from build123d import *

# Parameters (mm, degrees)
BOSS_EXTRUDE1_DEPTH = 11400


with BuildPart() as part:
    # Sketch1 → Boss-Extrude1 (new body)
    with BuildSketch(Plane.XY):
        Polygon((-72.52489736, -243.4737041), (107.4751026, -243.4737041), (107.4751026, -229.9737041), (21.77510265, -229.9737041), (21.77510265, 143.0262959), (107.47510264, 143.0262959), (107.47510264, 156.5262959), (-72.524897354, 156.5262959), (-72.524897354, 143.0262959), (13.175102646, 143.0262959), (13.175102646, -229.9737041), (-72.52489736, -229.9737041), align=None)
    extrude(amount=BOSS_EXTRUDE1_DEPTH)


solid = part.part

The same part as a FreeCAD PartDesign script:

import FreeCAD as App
import Part
import Sketcher

V = App.Vector


def add_polygon(sketch, points):
    """Adds a closed chain of lines whose ends are joined by coincident constraints."""
    first, n = sketch.GeometryCount, len(points)
    for a, b in zip(points, points[1:] + points[:1]):
        sketch.addGeometry(Part.LineSegment(App.Vector(*a, 0), App.Vector(*b, 0)), False)
    for i in range(n):
        sketch.addConstraint(Sketcher.Constraint("Coincident", first + i, 2, first + (i + 1) % n, 1))

doc = App.newDocument("Part")
body = doc.addObject("PartDesign::Body", "Body")

sketch1 = doc.addObject("Sketcher::SketchObject", "Sketch")
body.addObject(sketch1)
sketch1.AttachmentSupport = (doc.XY_Plane, [""])
sketch1.MapMode = "FlatFace"
add_polygon(sketch1, [(-73, -243), (107, -243), (107, -230), (22, -230), (22, 143), (107, 143), (107, 157), (-73, 157), (-73, 143), (13, 143), (13, -230), (-73, -230)])
sketch1.addConstraint(Sketcher.Constraint("Horizontal", 0))
sketch1.addConstraint(Sketcher.Constraint("Vertical", 1))
sketch1.addConstraint(Sketcher.Constraint("Horizontal", 2))
sketch1.addConstraint(Sketcher.Constraint("Vertical", 3))
sketch1.addConstraint(Sketcher.Constraint("Horizontal", 4))
sketch1.addConstraint(Sketcher.Constraint("Vertical", 5))
sketch1.addConstraint(Sketcher.Constraint("Horizontal", 6))
sketch1.addConstraint(Sketcher.Constraint("Vertical", 7))
sketch1.addConstraint(Sketcher.Constraint("Horizontal", 8))
sketch1.addConstraint(Sketcher.Constraint("Vertical", 9))
sketch1.addConstraint(Sketcher.Constraint("Horizontal", 10))
sketch1.addConstraint(Sketcher.Constraint("Vertical", 11))
sketch1.addConstraint(Sketcher.Constraint("Horizontal", 4, 2, 7, 2))
sketch1.addConstraint(Sketcher.Constraint("Horizontal", 2, 2, 9, 2))
sketch1.addConstraint(Sketcher.Constraint("Vertical", 1, 2, 4, 2))
sketch1.addConstraint(Sketcher.Constraint("Vertical", 7, 2, 10, 2))
sketch1.addConstraint(Sketcher.Constraint("Equal", 4, 8))
sketch1.addConstraint(Sketcher.Constraint("Equal", 1, 5))
sketch1.addConstraint(Sketcher.Constraint("DistanceX", 0, 1, 0, 2, 180.0))
sketch1.addConstraint(Sketcher.Constraint("DistanceY", 3, 1, 3, 2, 373.0))
sketch1.addConstraint(Sketcher.Constraint("DistanceX", 2, 2, 2, 1, 85.7))
sketch1.addConstraint(Sketcher.Constraint("DistanceY", 1, 1, 1, 2, 13.5))
sketch1.addConstraint(Sketcher.Constraint("DistanceX", -1, 1, 0, 2, 107.475103))
sketch1.addConstraint(Sketcher.Constraint("DistanceY", 0, 2, -1, 1, 243.473704))
pad1 = doc.addObject("PartDesign::Pad", "Pad")
body.addObject(pad1)
pad1.Profile = sketch1
pad1.Length = 11400

doc.recompute()
